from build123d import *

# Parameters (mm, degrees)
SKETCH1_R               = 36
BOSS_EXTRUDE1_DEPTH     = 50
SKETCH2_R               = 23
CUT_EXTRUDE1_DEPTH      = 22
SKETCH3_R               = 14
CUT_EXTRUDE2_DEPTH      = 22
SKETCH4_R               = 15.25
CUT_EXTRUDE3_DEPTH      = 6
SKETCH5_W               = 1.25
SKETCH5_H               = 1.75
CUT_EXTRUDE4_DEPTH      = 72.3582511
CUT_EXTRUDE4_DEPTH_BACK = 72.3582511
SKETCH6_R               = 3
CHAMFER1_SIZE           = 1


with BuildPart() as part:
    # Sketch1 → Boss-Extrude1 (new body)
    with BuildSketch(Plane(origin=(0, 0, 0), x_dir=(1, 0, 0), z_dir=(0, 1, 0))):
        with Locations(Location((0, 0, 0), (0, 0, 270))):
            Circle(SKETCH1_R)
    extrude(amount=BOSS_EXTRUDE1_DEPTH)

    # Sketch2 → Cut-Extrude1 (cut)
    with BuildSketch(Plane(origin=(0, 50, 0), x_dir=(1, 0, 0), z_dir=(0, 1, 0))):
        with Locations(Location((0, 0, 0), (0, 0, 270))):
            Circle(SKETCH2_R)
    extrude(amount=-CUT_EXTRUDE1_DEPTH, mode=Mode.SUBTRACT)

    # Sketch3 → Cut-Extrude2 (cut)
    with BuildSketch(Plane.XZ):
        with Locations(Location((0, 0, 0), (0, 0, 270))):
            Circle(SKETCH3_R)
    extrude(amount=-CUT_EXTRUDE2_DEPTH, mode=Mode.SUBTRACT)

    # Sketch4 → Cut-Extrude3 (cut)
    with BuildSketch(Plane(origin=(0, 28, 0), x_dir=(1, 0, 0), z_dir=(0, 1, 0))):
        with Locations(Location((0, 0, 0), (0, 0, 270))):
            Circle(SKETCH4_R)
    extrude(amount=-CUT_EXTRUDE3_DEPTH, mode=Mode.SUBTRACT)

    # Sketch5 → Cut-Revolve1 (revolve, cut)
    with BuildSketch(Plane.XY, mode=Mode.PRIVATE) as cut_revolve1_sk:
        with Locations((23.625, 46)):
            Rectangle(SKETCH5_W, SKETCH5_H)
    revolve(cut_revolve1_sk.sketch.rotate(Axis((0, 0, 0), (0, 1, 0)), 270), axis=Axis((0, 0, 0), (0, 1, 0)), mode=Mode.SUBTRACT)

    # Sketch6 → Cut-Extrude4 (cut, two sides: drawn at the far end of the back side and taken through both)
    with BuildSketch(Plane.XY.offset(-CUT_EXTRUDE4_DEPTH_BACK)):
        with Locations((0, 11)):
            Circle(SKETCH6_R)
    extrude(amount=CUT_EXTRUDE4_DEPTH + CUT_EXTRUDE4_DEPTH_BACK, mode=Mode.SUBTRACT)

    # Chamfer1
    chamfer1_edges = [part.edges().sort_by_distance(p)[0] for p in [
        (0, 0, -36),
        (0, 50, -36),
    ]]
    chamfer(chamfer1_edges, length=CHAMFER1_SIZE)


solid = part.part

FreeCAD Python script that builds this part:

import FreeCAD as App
import Part
import Sketcher

V = App.Vector
Q = App.Units.Quantity


def edges_at(feature, points):
    """Names of the edges that pass closest to the given points."""
    edges = feature.Shape.Edges
    near = lambda p: min(range(len(edges)), key=lambda i: edges[i].distToShape(Part.Vertex(*p))[0])
    return sorted({f"Edge{near(p) + 1}" for p in points})

doc = App.newDocument("Part")
body = doc.addObject("PartDesign::Body", "Body")

sketch1 = doc.addObject("Sketcher::SketchObject", "Sketch")
body.addObject(sketch1)
sketch1.AttachmentSupport = (doc.XZ_Plane, [""])
sketch1.MapMode = "FlatFace"
sketch1.addGeometry(Part.Circle(V(0, 0, 0), V(0, 0, 1), 36), False)
sketch1.addConstraint([
    Sketcher.Constraint("Coincident", 0, 3, -1, 1),
    Sketcher.Constraint("Diameter", 0, Q("72 mm")),
])
pad1 = doc.addObject("PartDesign::Pad", "Pad")
body.addObject(pad1)
pad1.Profile = sketch1
pad1.Length = 50
pad1.Reversed = True

sketch2 = doc.addObject("Sketcher::SketchObject", "Sketch001")
body.addObject(sketch2)
sketch2.AttachmentSupport = (doc.XZ_Plane, [""])
sketch2.MapMode = "FlatFace"
sketch2.AttachmentOffset = App.Placement(V(0, 0, -50), App.Rotation())
sketch2.addGeometry(Part.Circle(V(0, 0, 0), V(0, 0, 1), 23), False)
sketch2.addConstraint([
    Sketcher.Constraint("Coincident", 0, 3, -1, 1),
    Sketcher.Constraint("Diameter", 0, Q("46 mm")),
])
pocket1 = doc.addObject("PartDesign::Pocket", "Pocket")
body.addObject(pocket1)
pocket1.Profile = sketch2
pocket1.Length = 22
pocket1.Reversed = True

sketch3 = doc.addObject("Sketcher::SketchObject", "Sketch002")
body.addObject(sketch3)
sketch3.AttachmentSupport = (doc.XZ_Plane, [""])
sketch3.MapMode = "FlatFace"
sketch3.addGeometry(Part.Circle(V(0, 0, 0), V(0, 0, 1), 14), False)
sketch3.addConstraint([
    Sketcher.Constraint("Coincident", 0, 3, -1, 1),
    Sketcher.Constraint("Diameter", 0, Q("28 mm")),
])
pocket2 = doc.addObject("PartDesign::Pocket", "Pocket001")
body.addObject(pocket2)
pocket2.Profile = sketch3
pocket2.Length = 22

sketch4 = doc.addObject("Sketcher::SketchObject", "Sketch003")
body.addObject(sketch4)
sketch4.AttachmentSupport = (doc.XZ_Plane, [""])
sketch4.MapMode = "FlatFace"
sketch4.AttachmentOffset = App.Placement(V(0, 0, -28), App.Rotation())
sketch4.addGeometry(Part.Circle(V(0, 0, 0), V(0, 0, 1), 15), False)
sketch4.addConstraint([
    Sketcher.Constraint("Coincident", 0, 3, -1, 1),
    Sketcher.Constraint("Diameter", 0, Q("30.5 mm")),
])
pocket3 = doc.addObject("PartDesign::Pocket", "Pocket002")
body.addObject(pocket3)
pocket3.Profile = sketch4
pocket3.Length = 6
pocket3.Reversed = True

sketch5 = doc.addObject("Sketcher::SketchObject", "Sketch004")
body.addObject(sketch5)
sketch5.AttachmentSupport = (doc.XY_Plane, [""])
sketch5.MapMode = "FlatFace"
sketch5.addGeometry([
    Part.LineSegment(V(23, 46.9, 0), V(23, 45.1, 0)),
    Part.LineSegment(V(23, 45.1, 0), V(24.2, 45.1, 0)),
    Part.LineSegment(V(24.2, 45.1, 0), V(24.2, 46.9, 0)),
    Part.LineSegment(V(24.2, 46.9, 0), V(23, 46.9, 0)),
], False)
sketch5.addConstraint([
    Sketcher.Constraint("Coincident", 0, 2, 1, 1),
    Sketcher.Constraint("Coincident", 1, 2, 2, 1),
    Sketcher.Constraint("Coincident", 2, 2, 3, 1),
    Sketcher.Constraint("Coincident", 3, 2, 0, 1),
    Sketcher.Constraint("Vertical", 0),
    Sketcher.Constraint("Horizontal", 1),
    Sketcher.Constraint("Vertical", 2),
    Sketcher.Constraint("Horizontal", 3),
    Sketcher.Constraint("DistanceX", -1, 1, 0, 2, Q("23 mm")),
    Sketcher.Constraint("DistanceX", 1, 1, 1, 2, Q("1.25 mm")),
    Sketcher.Constraint("DistanceY", 0, 2, 0, 1, Q("1.75 mm")),
    Sketcher.Constraint("DistanceY", -1, 1, 0, 2, Q("45.125 mm")),
])
groove = doc.addObject("PartDesign::Groove", "Groove")
body.addObject(groove)
groove.Profile = sketch5
groove.ReferenceAxis = (sketch5, ["V_Axis"])
groove.Angle = 360

sketch6 = doc.addObject("Sketcher::SketchObject", "Sketch005")
body.addObject(sketch6)
sketch6.AttachmentSupport = (doc.XY_Plane, [""])
sketch6.MapMode = "FlatFace"
sketch6.addGeometry(Part.Circle(V(0, 11, 0), V(0, 0, 1), 3), False)
sketch6.addConstraint([
    Sketcher.Constraint("PointOnObject", 0, 3, -2),
    Sketcher.Constraint("Diameter", 0, Q("6 mm")),
    Sketcher.Constraint("DistanceY", -1, 1, 0, 3, Q("11 mm")),
])
pocket4 = doc.addObject("PartDesign::Pocket", "Pocket003")
body.addObject(pocket4)
pocket4.Profile = sketch6
pocket4.Type = "ThroughAll"
pocket4.Midplane = True
doc.recompute()

chamfer = doc.addObject("PartDesign::Chamfer", "Chamfer")
body.addObject(chamfer)
chamfer.Base = (pocket4, edges_at(pocket4, [(0, 0, -36), (0, 50, -36)]))
chamfer.Size = 1

doc.recompute()
